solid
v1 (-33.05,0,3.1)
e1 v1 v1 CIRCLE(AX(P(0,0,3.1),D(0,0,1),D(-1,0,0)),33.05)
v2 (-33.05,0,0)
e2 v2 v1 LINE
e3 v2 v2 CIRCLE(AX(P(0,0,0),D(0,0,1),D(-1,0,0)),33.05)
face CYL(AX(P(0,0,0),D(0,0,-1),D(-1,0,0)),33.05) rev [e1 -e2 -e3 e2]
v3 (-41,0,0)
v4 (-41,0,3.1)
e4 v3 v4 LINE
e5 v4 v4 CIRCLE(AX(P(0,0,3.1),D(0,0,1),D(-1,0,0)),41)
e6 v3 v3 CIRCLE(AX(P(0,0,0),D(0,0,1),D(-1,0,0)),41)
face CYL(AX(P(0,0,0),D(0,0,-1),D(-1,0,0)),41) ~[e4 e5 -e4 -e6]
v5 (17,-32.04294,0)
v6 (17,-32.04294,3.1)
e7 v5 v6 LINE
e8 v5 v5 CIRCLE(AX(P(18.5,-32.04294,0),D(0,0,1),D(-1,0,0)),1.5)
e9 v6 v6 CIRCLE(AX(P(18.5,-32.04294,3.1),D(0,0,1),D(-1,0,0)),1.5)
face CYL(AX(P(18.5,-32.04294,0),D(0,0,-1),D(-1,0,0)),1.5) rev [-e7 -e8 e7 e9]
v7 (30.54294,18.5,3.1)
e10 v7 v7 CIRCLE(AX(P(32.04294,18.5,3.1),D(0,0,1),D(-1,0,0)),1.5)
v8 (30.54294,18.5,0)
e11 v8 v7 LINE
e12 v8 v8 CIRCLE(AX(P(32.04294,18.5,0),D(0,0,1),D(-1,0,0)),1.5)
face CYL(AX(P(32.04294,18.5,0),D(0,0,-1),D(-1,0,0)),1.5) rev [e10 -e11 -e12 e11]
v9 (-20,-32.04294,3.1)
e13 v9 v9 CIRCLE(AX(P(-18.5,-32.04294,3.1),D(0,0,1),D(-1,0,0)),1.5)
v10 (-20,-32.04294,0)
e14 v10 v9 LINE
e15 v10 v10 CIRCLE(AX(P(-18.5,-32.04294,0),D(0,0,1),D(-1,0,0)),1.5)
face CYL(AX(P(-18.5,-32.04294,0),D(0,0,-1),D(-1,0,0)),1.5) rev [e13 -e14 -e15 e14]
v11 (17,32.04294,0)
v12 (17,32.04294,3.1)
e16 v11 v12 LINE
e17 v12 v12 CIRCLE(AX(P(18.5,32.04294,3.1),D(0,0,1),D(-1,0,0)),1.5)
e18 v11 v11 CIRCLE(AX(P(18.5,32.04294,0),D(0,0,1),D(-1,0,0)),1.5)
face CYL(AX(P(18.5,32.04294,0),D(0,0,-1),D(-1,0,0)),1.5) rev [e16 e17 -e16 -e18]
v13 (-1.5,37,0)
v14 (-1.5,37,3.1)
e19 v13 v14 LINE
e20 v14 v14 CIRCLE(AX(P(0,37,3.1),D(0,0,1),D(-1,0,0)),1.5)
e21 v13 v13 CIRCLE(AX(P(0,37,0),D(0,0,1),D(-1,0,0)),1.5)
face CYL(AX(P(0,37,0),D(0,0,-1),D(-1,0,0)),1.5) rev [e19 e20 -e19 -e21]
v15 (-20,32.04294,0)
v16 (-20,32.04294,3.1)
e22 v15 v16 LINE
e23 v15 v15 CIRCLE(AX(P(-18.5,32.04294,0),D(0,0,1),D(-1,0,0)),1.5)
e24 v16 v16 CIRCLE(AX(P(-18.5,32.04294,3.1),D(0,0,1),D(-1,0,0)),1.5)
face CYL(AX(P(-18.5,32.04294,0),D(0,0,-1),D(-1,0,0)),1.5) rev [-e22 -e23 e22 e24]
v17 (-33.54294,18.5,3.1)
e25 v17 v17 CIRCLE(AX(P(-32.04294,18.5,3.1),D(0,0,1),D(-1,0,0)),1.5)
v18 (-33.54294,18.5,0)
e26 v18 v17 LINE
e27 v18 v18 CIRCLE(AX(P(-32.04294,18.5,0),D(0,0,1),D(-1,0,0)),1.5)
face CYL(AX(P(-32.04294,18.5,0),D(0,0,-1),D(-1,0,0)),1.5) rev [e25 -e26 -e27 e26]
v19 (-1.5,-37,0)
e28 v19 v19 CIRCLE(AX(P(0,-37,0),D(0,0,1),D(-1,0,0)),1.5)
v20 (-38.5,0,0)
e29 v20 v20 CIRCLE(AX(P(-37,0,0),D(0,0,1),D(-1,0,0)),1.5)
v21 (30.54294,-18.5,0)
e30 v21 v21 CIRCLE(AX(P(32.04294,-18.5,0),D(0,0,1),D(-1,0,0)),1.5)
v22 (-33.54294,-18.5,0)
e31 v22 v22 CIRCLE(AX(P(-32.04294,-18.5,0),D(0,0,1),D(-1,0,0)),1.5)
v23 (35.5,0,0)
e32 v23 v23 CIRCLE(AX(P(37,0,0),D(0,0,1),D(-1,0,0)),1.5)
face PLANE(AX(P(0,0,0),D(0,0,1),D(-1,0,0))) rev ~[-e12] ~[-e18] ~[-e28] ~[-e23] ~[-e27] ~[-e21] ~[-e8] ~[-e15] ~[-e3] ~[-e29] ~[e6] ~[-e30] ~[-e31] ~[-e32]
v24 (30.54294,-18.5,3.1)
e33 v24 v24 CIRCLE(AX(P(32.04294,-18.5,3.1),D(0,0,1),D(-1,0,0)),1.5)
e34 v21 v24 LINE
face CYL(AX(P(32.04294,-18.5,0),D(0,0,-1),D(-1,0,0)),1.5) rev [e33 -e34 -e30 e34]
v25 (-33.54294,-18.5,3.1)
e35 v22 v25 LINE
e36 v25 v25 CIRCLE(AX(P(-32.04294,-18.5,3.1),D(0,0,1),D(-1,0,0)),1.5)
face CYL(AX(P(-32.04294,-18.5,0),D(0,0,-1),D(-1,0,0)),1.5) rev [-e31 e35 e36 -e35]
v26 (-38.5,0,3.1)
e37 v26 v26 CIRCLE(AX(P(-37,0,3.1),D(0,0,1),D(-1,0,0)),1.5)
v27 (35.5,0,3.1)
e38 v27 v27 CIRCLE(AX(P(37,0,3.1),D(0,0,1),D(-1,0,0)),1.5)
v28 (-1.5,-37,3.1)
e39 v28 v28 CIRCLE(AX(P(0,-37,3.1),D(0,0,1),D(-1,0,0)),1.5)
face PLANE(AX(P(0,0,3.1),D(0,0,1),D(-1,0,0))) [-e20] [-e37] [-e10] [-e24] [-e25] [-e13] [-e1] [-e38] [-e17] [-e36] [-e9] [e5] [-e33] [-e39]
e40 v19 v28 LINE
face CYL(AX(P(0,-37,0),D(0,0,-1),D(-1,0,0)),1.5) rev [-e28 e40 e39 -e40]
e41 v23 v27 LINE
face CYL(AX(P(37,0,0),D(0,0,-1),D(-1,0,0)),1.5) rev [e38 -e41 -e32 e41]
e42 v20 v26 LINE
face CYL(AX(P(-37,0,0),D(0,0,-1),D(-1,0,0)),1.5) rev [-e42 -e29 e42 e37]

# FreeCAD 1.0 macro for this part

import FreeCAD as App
import Part
import Sketcher

doc = App.newDocument("Part")
params = doc.addObject("Spreadsheet::Sheet", "Params")
for row, (alias, value) in enumerate([
    ("sketch1_diameter", "82 mm"),
    ("sketch1_diameter2", "3 mm"),
    ("sketch1_diameter3", "66.1 mm"),
    ("pad1_length", "3.1 mm"),
], start=1):
    params.set(f"A{row}", alias)
    params.set(f"B{row}", "=" + value)
    params.setAlias(f"B{row}", alias)

body = doc.addObject("PartDesign::Body", "Body")

sketch1 = body.newObject("Sketcher::SketchObject", "Sketch")
sketch1.AttachmentSupport = (doc.getObject("XY_Plane"), [""])
sketch1.MapMode = "FlatFace"
sketch1.addGeometry([
    Part.Circle(App.Vector(0, 0, 0), App.Vector(0, 0, 1), 41),
    Part.Circle(App.Vector(18.5, 32, 0), App.Vector(0, 0, 1), 1.5),
    Part.Circle(App.Vector(32, 18.5, 0), App.Vector(0, 0, 1), 1.5),
    Part.Circle(App.Vector(0, 37, 0), App.Vector(0, 0, 1), 1.5),
    Part.Circle(App.Vector(-18.5, 32, 0), App.Vector(0, 0, 1), 1.5),
    Part.Circle(App.Vector(-32, 18.5, 0), App.Vector(0, 0, 1), 1.5),
    Part.Circle(App.Vector(37, 0, 0), App.Vector(0, 0, 1), 1.5),
    Part.Circle(App.Vector(32, -18.5, 0), App.Vector(0, 0, 1), 1.5),
    Part.Circle(App.Vector(18.5, -32, 0), App.Vector(0, 0, 1), 1.5),
    Part.Circle(App.Vector(0, 0, 0), App.Vector(0, 0, 1), 33),
    Part.Circle(App.Vector(-37, 0, 0), App.Vector(0, 0, 1), 1.5),
    Part.Circle(App.Vector(-32, -18.5, 0), App.Vector(0, 0, 1), 1.5),
    Part.Circle(App.Vector(0, -37, 0), App.Vector(0, 0, 1), 1.5),
    Part.Circle(App.Vector(-18.5, -32, 0), App.Vector(0, 0, 1), 1.5),
], False)
sketch1.addConstraint([
    Sketcher.Constraint("Coincident", 0, 3, -1, 1),
    Sketcher.Constraint("Coincident", 9, 3, -1, 1),
    Sketcher.Constraint("Equal", 1, 2),
    Sketcher.Constraint("Equal", 2, 3),
    Sketcher.Constraint("Equal", 3, 4),
    Sketcher.Constraint("Equal", 4, 5),
    Sketcher.Constraint("Equal", 5, 6),
    Sketcher.Constraint("Equal", 6, 7),
    Sketcher.Constraint("Equal", 7, 8),
    Sketcher.Constraint("Equal", 8, 10),
    Sketcher.Constraint("Equal", 10, 11),
    Sketcher.Constraint("Equal", 11, 12),
    Sketcher.Constraint("Equal", 12, 13),
    Sketcher.Constraint("Symmetric", 5, 3, 7, 3, -1, 1),
    Sketcher.Constraint("Symmetric", 4, 3, 8, 3, -1, 1),
    Sketcher.Constraint("Symmetric", 6, 3, 10, 3, -1, 1),
    Sketcher.Constraint("Symmetric", 2, 3, 11, 3, -1, 1),
    Sketcher.Constraint("Symmetric", 3, 3, 12, 3, -1, 1),
    Sketcher.Constraint("Symmetric", 1, 3, 13, 3, -1, 1),
    Sketcher.Constraint("Symmetric", 1, 3, 4, 3, -2),
    Sketcher.Constraint("Symmetric", 2, 3, 5, 3, -2),
    Sketcher.Constraint("PointOnObject", 3, 3, -2),
    Sketcher.Constraint("PointOnObject", 6, 3, -1),
    Sketcher.Constraint("Diameter", 0, 82.0),
    Sketcher.Constraint("Diameter", 1, 3.0),
    Sketcher.Constraint("Diameter", 9, 66.1),
    Sketcher.Constraint("DistanceY", -1, 1, 3, 3, 37.0),
    Sketcher.Constraint("DistanceX", -1, 1, 6, 3, 37.0),
    Sketcher.Constraint("DistanceX", 4, 3, 1, 3, 37.0),
    Sketcher.Constraint("DistanceY", 7, 3, 2, 3, 37.0),
    Sketcher.Constraint("DistanceY", -1, 1, 1, 3, 32.04294),
    Sketcher.Constraint("DistanceX", -1, 1, 2, 3, 32.04294),
])
sketch1.setExpression("Constraints[23]", "Params.sketch1_diameter")
sketch1.setExpression("Constraints[24]", "Params.sketch1_diameter2")
sketch1.setExpression("Constraints[25]", "Params.sketch1_diameter3")
pad1 = body.newObject("PartDesign::Pad", "Pad")
pad1.Profile = sketch1
pad1.setExpression("Length", "Params.pad1_length")

doc.recompute()
